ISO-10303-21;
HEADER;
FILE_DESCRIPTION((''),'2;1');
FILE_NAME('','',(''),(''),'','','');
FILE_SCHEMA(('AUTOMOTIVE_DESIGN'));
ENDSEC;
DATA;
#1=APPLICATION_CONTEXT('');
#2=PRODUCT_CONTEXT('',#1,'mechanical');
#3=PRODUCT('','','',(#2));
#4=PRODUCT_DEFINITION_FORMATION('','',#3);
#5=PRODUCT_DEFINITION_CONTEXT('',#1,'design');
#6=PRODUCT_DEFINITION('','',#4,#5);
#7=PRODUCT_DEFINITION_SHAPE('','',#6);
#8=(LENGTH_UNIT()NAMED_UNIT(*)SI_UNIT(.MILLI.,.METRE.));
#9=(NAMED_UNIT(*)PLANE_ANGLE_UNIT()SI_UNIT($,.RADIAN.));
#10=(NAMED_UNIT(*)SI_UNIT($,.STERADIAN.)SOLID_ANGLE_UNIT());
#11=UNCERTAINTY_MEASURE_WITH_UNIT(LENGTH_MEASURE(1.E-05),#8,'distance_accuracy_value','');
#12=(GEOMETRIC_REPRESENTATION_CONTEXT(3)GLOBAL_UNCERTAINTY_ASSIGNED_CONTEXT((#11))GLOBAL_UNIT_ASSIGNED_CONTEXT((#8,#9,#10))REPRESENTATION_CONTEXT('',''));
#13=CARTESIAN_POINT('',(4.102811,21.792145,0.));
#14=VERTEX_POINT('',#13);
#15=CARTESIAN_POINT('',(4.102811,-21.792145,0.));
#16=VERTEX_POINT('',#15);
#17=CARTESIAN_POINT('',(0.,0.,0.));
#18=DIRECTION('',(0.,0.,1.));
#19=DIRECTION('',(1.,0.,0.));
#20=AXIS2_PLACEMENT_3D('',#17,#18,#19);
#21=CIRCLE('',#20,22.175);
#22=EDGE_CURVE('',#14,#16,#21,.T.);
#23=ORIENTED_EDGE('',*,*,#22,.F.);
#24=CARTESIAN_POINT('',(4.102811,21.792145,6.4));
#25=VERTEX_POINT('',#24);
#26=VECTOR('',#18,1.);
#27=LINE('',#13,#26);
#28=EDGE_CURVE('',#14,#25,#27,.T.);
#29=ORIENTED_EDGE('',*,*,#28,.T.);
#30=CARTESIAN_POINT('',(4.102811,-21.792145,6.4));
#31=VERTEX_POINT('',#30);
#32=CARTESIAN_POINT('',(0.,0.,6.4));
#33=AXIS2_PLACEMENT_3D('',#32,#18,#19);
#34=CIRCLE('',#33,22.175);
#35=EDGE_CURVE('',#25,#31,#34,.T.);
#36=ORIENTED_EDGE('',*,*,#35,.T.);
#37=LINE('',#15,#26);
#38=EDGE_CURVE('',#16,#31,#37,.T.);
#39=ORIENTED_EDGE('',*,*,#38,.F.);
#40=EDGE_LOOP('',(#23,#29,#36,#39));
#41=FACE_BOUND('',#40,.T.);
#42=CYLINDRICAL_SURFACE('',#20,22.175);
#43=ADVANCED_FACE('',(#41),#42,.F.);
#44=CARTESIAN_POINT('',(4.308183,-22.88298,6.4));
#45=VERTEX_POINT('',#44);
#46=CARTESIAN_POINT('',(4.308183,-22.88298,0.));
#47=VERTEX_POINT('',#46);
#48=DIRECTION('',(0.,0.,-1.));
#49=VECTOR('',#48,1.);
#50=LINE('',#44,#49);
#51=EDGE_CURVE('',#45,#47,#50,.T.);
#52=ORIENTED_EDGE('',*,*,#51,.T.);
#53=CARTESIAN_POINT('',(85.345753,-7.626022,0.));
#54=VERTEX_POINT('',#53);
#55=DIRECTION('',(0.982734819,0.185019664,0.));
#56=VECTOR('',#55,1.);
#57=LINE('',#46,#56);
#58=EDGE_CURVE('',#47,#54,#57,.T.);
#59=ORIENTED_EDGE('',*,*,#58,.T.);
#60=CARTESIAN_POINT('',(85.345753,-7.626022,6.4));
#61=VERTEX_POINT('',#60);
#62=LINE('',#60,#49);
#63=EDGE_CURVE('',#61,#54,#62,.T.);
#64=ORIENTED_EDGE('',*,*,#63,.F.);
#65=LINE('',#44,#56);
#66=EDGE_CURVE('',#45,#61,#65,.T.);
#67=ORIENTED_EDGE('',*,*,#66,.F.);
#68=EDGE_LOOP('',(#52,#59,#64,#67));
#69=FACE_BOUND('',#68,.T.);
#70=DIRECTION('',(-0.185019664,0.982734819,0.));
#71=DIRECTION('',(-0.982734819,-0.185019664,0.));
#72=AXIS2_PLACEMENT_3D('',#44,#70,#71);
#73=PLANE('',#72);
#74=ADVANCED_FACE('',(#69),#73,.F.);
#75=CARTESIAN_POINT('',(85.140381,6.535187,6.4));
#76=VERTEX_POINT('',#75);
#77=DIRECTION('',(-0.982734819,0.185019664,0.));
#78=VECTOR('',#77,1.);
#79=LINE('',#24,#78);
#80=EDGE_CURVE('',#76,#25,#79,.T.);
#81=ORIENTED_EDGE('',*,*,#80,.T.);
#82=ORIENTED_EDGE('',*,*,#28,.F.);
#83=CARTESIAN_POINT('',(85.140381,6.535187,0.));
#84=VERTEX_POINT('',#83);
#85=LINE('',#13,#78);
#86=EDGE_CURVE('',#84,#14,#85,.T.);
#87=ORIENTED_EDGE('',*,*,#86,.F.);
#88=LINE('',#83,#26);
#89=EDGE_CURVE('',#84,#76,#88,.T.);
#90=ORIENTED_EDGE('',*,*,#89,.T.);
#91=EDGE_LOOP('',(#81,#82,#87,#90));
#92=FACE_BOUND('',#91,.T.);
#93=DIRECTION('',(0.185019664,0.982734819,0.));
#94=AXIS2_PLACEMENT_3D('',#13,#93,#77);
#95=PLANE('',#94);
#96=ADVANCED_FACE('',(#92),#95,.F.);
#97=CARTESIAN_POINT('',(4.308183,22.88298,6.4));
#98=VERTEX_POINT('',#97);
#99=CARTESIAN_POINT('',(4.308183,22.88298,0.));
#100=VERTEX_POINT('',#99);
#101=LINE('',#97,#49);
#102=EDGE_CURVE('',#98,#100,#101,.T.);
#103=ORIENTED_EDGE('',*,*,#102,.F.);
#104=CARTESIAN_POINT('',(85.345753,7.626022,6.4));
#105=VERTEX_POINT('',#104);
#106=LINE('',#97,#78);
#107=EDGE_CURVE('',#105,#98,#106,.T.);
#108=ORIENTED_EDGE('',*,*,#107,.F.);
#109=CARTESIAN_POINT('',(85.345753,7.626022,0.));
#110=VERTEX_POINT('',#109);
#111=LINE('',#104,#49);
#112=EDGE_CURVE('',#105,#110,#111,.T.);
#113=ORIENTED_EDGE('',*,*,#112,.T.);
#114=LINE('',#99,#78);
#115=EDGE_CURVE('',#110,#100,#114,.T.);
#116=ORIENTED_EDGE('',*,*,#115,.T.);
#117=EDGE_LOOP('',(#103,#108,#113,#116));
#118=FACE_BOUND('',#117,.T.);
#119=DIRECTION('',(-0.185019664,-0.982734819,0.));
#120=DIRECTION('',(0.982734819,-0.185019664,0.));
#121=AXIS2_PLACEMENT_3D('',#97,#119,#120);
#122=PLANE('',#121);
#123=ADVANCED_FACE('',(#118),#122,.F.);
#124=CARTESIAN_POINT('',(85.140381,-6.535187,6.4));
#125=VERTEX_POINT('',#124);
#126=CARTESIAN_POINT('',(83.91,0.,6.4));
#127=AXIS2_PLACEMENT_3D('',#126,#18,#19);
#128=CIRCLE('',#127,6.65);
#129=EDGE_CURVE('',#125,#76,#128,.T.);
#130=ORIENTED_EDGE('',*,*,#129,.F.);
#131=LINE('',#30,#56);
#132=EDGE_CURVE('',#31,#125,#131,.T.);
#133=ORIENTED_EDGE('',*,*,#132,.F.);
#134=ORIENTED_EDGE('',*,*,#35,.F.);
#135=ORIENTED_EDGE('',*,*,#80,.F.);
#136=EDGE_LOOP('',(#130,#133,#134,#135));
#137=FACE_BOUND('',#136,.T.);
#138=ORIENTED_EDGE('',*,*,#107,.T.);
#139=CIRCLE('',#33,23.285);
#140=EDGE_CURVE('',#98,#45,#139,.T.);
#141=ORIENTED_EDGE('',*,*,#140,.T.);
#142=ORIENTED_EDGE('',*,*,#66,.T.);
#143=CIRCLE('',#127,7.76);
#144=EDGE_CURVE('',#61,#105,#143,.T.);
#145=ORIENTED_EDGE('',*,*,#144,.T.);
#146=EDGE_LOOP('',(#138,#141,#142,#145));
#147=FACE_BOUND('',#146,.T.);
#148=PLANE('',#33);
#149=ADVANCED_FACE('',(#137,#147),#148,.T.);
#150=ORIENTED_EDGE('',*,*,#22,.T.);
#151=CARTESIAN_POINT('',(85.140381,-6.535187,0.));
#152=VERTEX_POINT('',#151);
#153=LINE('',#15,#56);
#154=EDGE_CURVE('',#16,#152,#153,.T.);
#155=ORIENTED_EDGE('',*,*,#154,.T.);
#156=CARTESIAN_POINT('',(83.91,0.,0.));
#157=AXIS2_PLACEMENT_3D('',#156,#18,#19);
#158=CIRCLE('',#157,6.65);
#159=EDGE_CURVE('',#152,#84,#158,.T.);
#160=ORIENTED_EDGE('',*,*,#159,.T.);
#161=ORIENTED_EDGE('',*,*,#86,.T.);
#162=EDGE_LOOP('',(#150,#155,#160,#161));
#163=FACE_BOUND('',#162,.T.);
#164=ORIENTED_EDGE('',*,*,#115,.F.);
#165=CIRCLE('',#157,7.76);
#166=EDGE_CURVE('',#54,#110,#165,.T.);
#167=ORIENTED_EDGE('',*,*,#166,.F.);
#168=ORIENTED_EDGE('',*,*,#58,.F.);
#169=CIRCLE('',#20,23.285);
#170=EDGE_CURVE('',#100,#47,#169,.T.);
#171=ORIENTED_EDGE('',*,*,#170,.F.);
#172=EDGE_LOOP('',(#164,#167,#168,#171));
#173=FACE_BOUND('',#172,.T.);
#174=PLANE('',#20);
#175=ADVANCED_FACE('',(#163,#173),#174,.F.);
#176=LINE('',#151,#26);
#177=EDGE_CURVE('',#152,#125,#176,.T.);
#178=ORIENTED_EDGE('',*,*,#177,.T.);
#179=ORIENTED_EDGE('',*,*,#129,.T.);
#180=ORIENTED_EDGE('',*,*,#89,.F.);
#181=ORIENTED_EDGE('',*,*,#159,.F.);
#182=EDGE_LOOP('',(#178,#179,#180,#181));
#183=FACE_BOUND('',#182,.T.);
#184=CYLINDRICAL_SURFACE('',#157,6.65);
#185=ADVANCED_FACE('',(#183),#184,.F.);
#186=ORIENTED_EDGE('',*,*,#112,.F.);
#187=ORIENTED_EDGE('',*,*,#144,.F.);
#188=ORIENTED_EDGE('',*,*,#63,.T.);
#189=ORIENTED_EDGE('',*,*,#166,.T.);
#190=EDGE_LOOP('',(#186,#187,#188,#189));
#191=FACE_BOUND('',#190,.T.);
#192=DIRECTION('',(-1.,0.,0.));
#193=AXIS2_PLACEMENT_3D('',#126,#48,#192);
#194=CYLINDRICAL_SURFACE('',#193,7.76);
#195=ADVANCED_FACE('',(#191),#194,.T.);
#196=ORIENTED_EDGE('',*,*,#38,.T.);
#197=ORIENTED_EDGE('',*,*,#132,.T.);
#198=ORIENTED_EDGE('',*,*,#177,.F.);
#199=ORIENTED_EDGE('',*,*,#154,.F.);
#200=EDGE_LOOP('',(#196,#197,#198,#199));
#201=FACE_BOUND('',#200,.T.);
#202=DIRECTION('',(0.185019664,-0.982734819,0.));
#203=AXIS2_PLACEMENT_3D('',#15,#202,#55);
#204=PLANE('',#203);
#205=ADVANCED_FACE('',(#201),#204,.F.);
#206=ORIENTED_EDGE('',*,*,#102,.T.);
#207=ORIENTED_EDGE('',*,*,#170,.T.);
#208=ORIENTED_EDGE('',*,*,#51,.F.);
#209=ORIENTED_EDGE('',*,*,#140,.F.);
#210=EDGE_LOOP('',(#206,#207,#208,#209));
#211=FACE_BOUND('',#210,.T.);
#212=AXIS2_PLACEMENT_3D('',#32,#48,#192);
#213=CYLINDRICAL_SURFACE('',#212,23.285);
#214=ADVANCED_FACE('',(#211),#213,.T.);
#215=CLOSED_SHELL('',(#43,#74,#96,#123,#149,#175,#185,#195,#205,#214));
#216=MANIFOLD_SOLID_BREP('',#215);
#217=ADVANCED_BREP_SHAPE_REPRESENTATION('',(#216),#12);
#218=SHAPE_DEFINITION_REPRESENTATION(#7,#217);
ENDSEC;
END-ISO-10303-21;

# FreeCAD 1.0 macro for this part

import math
import FreeCAD as App
import Part
import Sketcher
Q = App.Units.Quantity

doc = App.newDocument("Part")
params = doc.addObject("Spreadsheet::Sheet", "Params")
for row, (alias, value) in enumerate([
    ("sketch1_radius", "7.76 mm"),
    ("pad1_length", "6.4 mm"),
    ("sketch2_radius", "6.65 mm"),
], start=1):
    params.set(f"A{row}", alias)
    params.set(f"B{row}", "=" + value)
    params.setAlias(f"B{row}", alias)

body = doc.addObject("PartDesign::Body", "Body")

# Sketch on XY plane
sketch1 = doc.addObject("Sketcher::SketchObject", "Sketch")
body.addObject(sketch1)
sketch1.AttachmentSupport = (doc.XY_Plane, [""])
sketch1.MapMode = "FlatFace"
sketch1.addGeometry([
    Part.LineSegment(App.Vector(85, 8, 0), App.Vector(4, 23, 0)),
    Part.ArcOfCircle(Part.Circle(App.Vector(0, 0, 0), App.Vector(0, 0, 1), 23), math.radians(79), math.radians(281)),
    Part.LineSegment(App.Vector(4, -23, 0), App.Vector(85, -8, 0)),
    Part.ArcOfCircle(Part.Circle(App.Vector(84, 0, 0), App.Vector(0, 0, 1), 8), math.radians(-79), math.radians(79)),
], False)
sketch1.addConstraint([
    Sketcher.Constraint("Tangent", 0, 2, 1, 1),
    Sketcher.Constraint("Tangent", 1, 2, 2, 1),
    Sketcher.Constraint("Tangent", 2, 2, 3, 1),
    Sketcher.Constraint("Tangent", 3, 2, 0, 1),
    Sketcher.Constraint("Coincident", 1, 3, -1, 1),
    Sketcher.Constraint("PointOnObject", 3, 3, -1),
    Sketcher.Constraint("Radius", 3, Q("7.76 mm")),
    Sketcher.Constraint("Radius", 1, Q("23.285 mm")),
    Sketcher.Constraint("DistanceX", -1, 1, 3, 3, Q("83.91 mm")),
])
sketch1.setExpression("Constraints[6]", "Params.sketch1_radius")
pad1 = doc.addObject("PartDesign::Pad", "Pad")
body.addObject(pad1)
pad1.Profile = sketch1
pad1.setExpression("Length", "Params.pad1_length")

# Sketch on XY plane
sketch2 = doc.addObject("Sketcher::SketchObject", "Sketch001")
body.addObject(sketch2)
sketch2.AttachmentSupport = (doc.XY_Plane, [""])
sketch2.MapMode = "FlatFace"
sketch2.AttachmentOffset = App.Placement(App.Vector(0, 0, 6.4), App.Rotation())
sketch2.addGeometry([
    Part.LineSegment(App.Vector(85, 7, 0), App.Vector(4, 22, 0)),
    Part.ArcOfCircle(Part.Circle(App.Vector(0, 0, 0), App.Vector(0, 0, 1), 22), math.radians(79), math.radians(281)),
    Part.LineSegment(App.Vector(4, -22, 0), App.Vector(85, -7, 0)),
    Part.ArcOfCircle(Part.Circle(App.Vector(84, 0, 0), App.Vector(0, 0, 1), 7), math.radians(-79), math.radians(79)),
], False)
sketch2.addConstraint([
    Sketcher.Constraint("Tangent", 0, 2, 1, 1),
    Sketcher.Constraint("Tangent", 1, 2, 2, 1),
    Sketcher.Constraint("Tangent", 2, 2, 3, 1),
    Sketcher.Constraint("Tangent", 3, 2, 0, 1),
    Sketcher.Constraint("Coincident", 1, 3, -1, 1),
    Sketcher.Constraint("PointOnObject", 3, 3, -1),
    Sketcher.Constraint("Radius", 3, Q("6.65 mm")),
    Sketcher.Constraint("Radius", 1, Q("22.175 mm")),
    Sketcher.Constraint("DistanceX", -1, 1, 3, 3, Q("83.91 mm")),
])
sketch2.setExpression("Constraints[6]", "Params.sketch2_radius")
pocket1 = doc.addObject("PartDesign::Pocket", "Pocket")
body.addObject(pocket1)
pocket1.Profile = sketch2
pocket1.Type = "ThroughAll"

doc.recompute()
